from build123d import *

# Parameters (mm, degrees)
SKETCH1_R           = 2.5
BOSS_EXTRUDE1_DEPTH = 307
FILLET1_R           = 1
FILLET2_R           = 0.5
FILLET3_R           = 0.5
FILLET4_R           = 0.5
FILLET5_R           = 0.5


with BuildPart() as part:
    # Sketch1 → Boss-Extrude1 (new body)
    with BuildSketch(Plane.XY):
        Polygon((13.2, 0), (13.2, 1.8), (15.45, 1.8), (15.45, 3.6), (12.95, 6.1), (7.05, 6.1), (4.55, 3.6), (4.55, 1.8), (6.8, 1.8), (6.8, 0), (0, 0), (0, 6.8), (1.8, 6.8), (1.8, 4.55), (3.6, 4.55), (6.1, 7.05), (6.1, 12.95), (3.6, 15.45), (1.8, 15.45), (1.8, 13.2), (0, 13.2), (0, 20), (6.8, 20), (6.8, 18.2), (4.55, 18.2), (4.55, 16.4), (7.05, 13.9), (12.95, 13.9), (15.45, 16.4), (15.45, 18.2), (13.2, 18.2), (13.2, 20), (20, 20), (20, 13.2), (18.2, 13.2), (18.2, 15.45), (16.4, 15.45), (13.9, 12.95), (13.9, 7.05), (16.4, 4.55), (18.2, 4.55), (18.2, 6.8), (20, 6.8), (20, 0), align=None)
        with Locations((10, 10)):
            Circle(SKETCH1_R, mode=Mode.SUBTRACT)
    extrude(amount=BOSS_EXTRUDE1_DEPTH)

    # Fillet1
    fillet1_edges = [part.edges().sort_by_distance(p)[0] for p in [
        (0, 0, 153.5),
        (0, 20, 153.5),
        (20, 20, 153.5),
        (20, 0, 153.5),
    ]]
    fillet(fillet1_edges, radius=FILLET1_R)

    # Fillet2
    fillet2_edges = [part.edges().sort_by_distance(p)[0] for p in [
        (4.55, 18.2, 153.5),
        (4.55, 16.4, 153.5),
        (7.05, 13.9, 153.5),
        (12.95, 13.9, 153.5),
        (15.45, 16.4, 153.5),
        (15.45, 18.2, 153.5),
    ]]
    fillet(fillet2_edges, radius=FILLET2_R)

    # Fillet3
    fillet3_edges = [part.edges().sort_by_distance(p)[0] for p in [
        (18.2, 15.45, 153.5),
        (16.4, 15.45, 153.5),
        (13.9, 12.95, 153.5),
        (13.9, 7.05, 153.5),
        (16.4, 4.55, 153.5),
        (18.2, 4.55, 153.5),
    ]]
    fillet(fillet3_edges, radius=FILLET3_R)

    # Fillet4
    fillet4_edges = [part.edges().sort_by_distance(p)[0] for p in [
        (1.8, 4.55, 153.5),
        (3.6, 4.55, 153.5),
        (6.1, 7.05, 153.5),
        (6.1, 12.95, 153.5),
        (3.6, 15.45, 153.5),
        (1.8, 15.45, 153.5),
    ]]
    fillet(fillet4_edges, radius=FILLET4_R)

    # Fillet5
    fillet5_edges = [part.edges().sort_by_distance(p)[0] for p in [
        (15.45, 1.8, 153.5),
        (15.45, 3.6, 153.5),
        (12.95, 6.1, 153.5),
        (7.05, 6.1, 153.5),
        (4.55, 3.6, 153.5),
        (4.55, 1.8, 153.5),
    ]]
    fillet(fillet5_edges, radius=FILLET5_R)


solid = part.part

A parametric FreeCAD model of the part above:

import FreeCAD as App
import Part
import Sketcher
from FreeCAD import Vector


def edges_at(feature, points):
    """Names of the edges that pass closest to the given points."""
    edges = feature.Shape.Edges
    near = lambda p: min(range(len(edges)), key=lambda i: edges[i].distToShape(Part.Vertex(*p))[0])
    return sorted({f"Edge{near(p) + 1}" for p in points})

doc = App.newDocument("Part")
body = doc.addObject("PartDesign::Body", "Body")

sketch1 = body.newObject("Sketcher::SketchObject", "Sketch")
sketch1.AttachmentSupport = (doc.getObject("XY_Plane"), [""])
sketch1.MapMode = "FlatFace"
sketch1.addGeometry([
    Part.LineSegment(Vector(13.2, 1.8, 0), Vector(13.2, 0, 0)),
    Part.LineSegment(Vector(13.2, 0, 0), Vector(20, 0, 0)),
    Part.LineSegment(Vector(20, 0, 0), Vector(20, 6.8, 0)),
    Part.LineSegment(Vector(20, 6.8, 0), Vector(18.2, 6.8, 0)),
    Part.LineSegment(Vector(18.2, 6.8, 0), Vector(18.2, 4.5, 0)),
    Part.LineSegment(Vector(18.2, 4.5, 0), Vector(16.4, 4.5, 0)),
    Part.LineSegment(Vector(16.4, 4.5, 0), Vector(13.9, 7, 0)),
    Part.LineSegment(Vector(13.9, 7, 0), Vector(13.9, 12.9, 0)),
    Part.LineSegment(Vector(13.9, 12.9, 0), Vector(16.4, 15.4, 0)),
    Part.LineSegment(Vector(16.4, 15.4, 0), Vector(18.2, 15.4, 0)),
    Part.LineSegment(Vector(18.2, 15.4, 0), Vector(18.2, 13.2, 0)),
    Part.LineSegment(Vector(18.2, 13.2, 0), Vector(20, 13.2, 0)),
    Part.LineSegment(Vector(20, 13.2, 0), Vector(20, 20, 0)),
    Part.LineSegment(Vector(20, 20, 0), Vector(13.2, 20, 0)),
    Part.LineSegment(Vector(13.2, 20, 0), Vector(13.2, 18.2, 0)),
    Part.LineSegment(Vector(13.2, 18.2, 0), Vector(15.4, 18.2, 0)),
    Part.LineSegment(Vector(15.4, 18.2, 0), Vector(15.4, 16.4, 0)),
    Part.LineSegment(Vector(15.4, 16.4, 0), Vector(12.9, 13.9, 0)),
    Part.LineSegment(Vector(12.9, 13.9, 0), Vector(7, 13.9, 0)),
    Part.LineSegment(Vector(7, 13.9, 0), Vector(4.5, 16.4, 0)),
    Part.LineSegment(Vector(4.5, 16.4, 0), Vector(4.5, 18.2, 0)),
    Part.LineSegment(Vector(4.5, 18.2, 0), Vector(6.8, 18.2, 0)),
    Part.LineSegment(Vector(6.8, 18.2, 0), Vector(6.8, 20, 0)),
    Part.LineSegment(Vector(6.8, 20, 0), Vector(0, 20, 0)),
    Part.LineSegment(Vector(0, 20, 0), Vector(0, 13.2, 0)),
    Part.LineSegment(Vector(0, 13.2, 0), Vector(1.8, 13.2, 0)),
    Part.LineSegment(Vector(1.8, 13.2, 0), Vector(1.8, 15.4, 0)),
    Part.LineSegment(Vector(1.8, 15.4, 0), Vector(3.6, 15.4, 0)),
    Part.LineSegment(Vector(3.6, 15.4, 0), Vector(6.1, 12.9, 0)),
    Part.LineSegment(Vector(6.1, 12.9, 0), Vector(6.1, 7, 0)),
    Part.LineSegment(Vector(6.1, 7, 0), Vector(3.6, 4.5, 0)),
    Part.LineSegment(Vector(3.6, 4.5, 0), Vector(1.8, 4.5, 0)),
    Part.LineSegment(Vector(1.8, 4.5, 0), Vector(1.8, 6.8, 0)),
    Part.LineSegment(Vector(1.8, 6.8, 0), Vector(0, 6.8, 0)),
    Part.LineSegment(Vector(0, 6.8, 0), Vector(0, 0, 0)),
    Part.LineSegment(Vector(0, 0, 0), Vector(6.8, 0, 0)),
    Part.LineSegment(Vector(6.8, 0, 0), Vector(6.8, 1.8, 0)),
    Part.LineSegment(Vector(6.8, 1.8, 0), Vector(4.5, 1.8, 0)),
    Part.LineSegment(Vector(4.5, 1.8, 0), Vector(4.5, 3.6, 0)),
    Part.LineSegment(Vector(4.5, 3.6, 0), Vector(7, 6.1, 0)),
    Part.LineSegment(Vector(7, 6.1, 0), Vector(12.9, 6.1, 0)),
    Part.LineSegment(Vector(12.9, 6.1, 0), Vector(15.4, 3.6, 0)),
    Part.LineSegment(Vector(15.4, 3.6, 0), Vector(15.4, 1.8, 0)),
    Part.LineSegment(Vector(15.4, 1.8, 0), Vector(13.2, 1.8, 0)),
    Part.Circle(Vector(10, 10, 0), Vector(0, 0, 1), 2.5),
], False)
sketch1.addConstraint([
    Sketcher.Constraint("Coincident", 0, 2, 1, 1),
    Sketcher.Constraint("Coincident", 1, 2, 2, 1),
    Sketcher.Constraint("Coincident", 2, 2, 3, 1),
    Sketcher.Constraint("Coincident", 3, 2, 4, 1),
    Sketcher.Constraint("Coincident", 4, 2, 5, 1),
    Sketcher.Constraint("Coincident", 5, 2, 6, 1),
    Sketcher.Constraint("Coincident", 6, 2, 7, 1),
    Sketcher.Constraint("Coincident", 7, 2, 8, 1),
    Sketcher.Constraint("Coincident", 8, 2, 9, 1),
    Sketcher.Constraint("Coincident", 9, 2, 10, 1),
    Sketcher.Constraint("Coincident", 10, 2, 11, 1),
    Sketcher.Constraint("Coincident", 11, 2, 12, 1),
    Sketcher.Constraint("Coincident", 12, 2, 13, 1),
    Sketcher.Constraint("Coincident", 13, 2, 14, 1),
    Sketcher.Constraint("Coincident", 14, 2, 15, 1),
    Sketcher.Constraint("Coincident", 15, 2, 16, 1),
    Sketcher.Constraint("Coincident", 16, 2, 17, 1),
    Sketcher.Constraint("Coincident", 17, 2, 18, 1),
    Sketcher.Constraint("Coincident", 18, 2, 19, 1),
    Sketcher.Constraint("Coincident", 19, 2, 20, 1),
    Sketcher.Constraint("Coincident", 20, 2, 21, 1),
    Sketcher.Constraint("Coincident", 21, 2, 22, 1),
    Sketcher.Constraint("Coincident", 22, 2, 23, 1),
    Sketcher.Constraint("Coincident", 23, 2, 24, 1),
    Sketcher.Constraint("Coincident", 24, 2, 25, 1),
    Sketcher.Constraint("Coincident", 25, 2, 26, 1),
    Sketcher.Constraint("Coincident", 26, 2, 27, 1),
    Sketcher.Constraint("Coincident", 27, 2, 28, 1),
    Sketcher.Constraint("Coincident", 28, 2, 29, 1),
    Sketcher.Constraint("Coincident", 29, 2, 30, 1),
    Sketcher.Constraint("Coincident", 30, 2, 31, 1),
    Sketcher.Constraint("Coincident", 31, 2, 32, 1),
    Sketcher.Constraint("Coincident", 32, 2, 33, 1),
    Sketcher.Constraint("Coincident", 33, 2, 34, 1),
    Sketcher.Constraint("Coincident", 34, 2, 35, 1),
    Sketcher.Constraint("Coincident", 35, 2, 36, 1),
    Sketcher.Constraint("Coincident", 36, 2, 37, 1),
    Sketcher.Constraint("Coincident", 37, 2, 38, 1),
    Sketcher.Constraint("Coincident", 38, 2, 39, 1),
    Sketcher.Constraint("Coincident", 39, 2, 40, 1),
    Sketcher.Constraint("Coincident", 40, 2, 41, 1),
    Sketcher.Constraint("Coincident", 41, 2, 42, 1),
    Sketcher.Constraint("Coincident", 42, 2, 43, 1),
    Sketcher.Constraint("Coincident", 43, 2, 0, 1),
    Sketcher.Constraint("Vertical", 0),
    Sketcher.Constraint("Horizontal", 1),
    Sketcher.Constraint("Vertical", 2),
    Sketcher.Constraint("Horizontal", 3),
    Sketcher.Constraint("Vertical", 4),
    Sketcher.Constraint("Horizontal", 5),
    Sketcher.Constraint("Vertical", 7),
    Sketcher.Constraint("Horizontal", 9),
    Sketcher.Constraint("Vertical", 10),
    Sketcher.Constraint("Horizontal", 11),
    Sketcher.Constraint("Vertical", 12),
    Sketcher.Constraint("Horizontal", 13),
    Sketcher.Constraint("Vertical", 14),
    Sketcher.Constraint("Horizontal", 15),
    Sketcher.Constraint("Vertical", 16),
    Sketcher.Constraint("Horizontal", 18),
    Sketcher.Constraint("Vertical", 20),
    Sketcher.Constraint("Horizontal", 21),
    Sketcher.Constraint("Vertical", 22),
    Sketcher.Constraint("Horizontal", 23),
    Sketcher.Constraint("Vertical", 24),
    Sketcher.Constraint("Horizontal", 25),
    Sketcher.Constraint("Vertical", 26),
    Sketcher.Constraint("Horizontal", 27),
    Sketcher.Constraint("Vertical", 29),
    Sketcher.Constraint("Horizontal", 31),
    Sketcher.Constraint("Vertical", 32),
    Sketcher.Constraint("Horizontal", 33),
    Sketcher.Constraint("Vertical", 34),
    Sketcher.Constraint("Horizontal", 35),
    Sketcher.Constraint("Vertical", 36),
    Sketcher.Constraint("Horizontal", 37),
    Sketcher.Constraint("Vertical", 38),
    Sketcher.Constraint("Horizontal", 40),
    Sketcher.Constraint("Vertical", 42),
    Sketcher.Constraint("Horizontal", 43),
    Sketcher.Constraint("Coincident", 34, 2, -1, 1),
    Sketcher.Constraint("PointOnObject", 0, 2, -1),
    Sketcher.Constraint("PointOnObject", 23, 2, -2),
    Sketcher.Constraint("Perpendicular", 6, 8),
    Sketcher.Constraint("Parallel", 8, 17),
    Sketcher.Constraint("Perpendicular", 17, 19),
    Sketcher.Constraint("Parallel", 19, 28),
    Sketcher.Constraint("Perpendicular", 28, 30),
    Sketcher.Constraint("Parallel", 30, 39),
    Sketcher.Constraint("Perpendicular", 39, 41),
    Sketcher.Constraint("Horizontal", 16, 2, 19, 2),
    Sketcher.Constraint("Horizontal", 15, 2, 20, 2),
    Sketcher.Constraint("Horizontal", 13, 2, 22, 2),
    Sketcher.Constraint("Horizontal", 11, 2, 24, 2),
    Sketcher.Constraint("Horizontal", 9, 2, 26, 2),
    Sketcher.Constraint("Horizontal", 7, 2, 28, 2),
    Sketcher.Constraint("Horizontal", 6, 2, 29, 2),
    Sketcher.Constraint("Horizontal", 5, 2, 30, 2),
    Sketcher.Constraint("Horizontal", 3, 2, 32, 2),
    Sketcher.Constraint("Horizontal", 38, 2, 41, 2),
    Sketcher.Constraint("Horizontal", 37, 2, 42, 2),
    Sketcher.Constraint("Vertical", 5, 2, 8, 2),
    Sketcher.Constraint("Vertical", 4, 2, 9, 2),
    Sketcher.Constraint("Vertical", 2, 2, 11, 2),
    Sketcher.Constraint("Vertical", 0, 2, 13, 2),
    Sketcher.Constraint("Vertical", 27, 2, 30, 2),
    Sketcher.Constraint("Vertical", 26, 2, 31, 2),
    Sketcher.Constraint("Vertical", 22, 2, 35, 2),
    Sketcher.Constraint("Vertical", 20, 2, 37, 2),
    Sketcher.Constraint("Vertical", 18, 2, 39, 2),
    Sketcher.Constraint("Vertical", 17, 2, 40, 2),
    Sketcher.Constraint("Equal", 3, 5),
    Sketcher.Constraint("Equal", 15, 21),
    Sketcher.Constraint("Equal", 13, 23),
    Sketcher.Constraint("Equal", 11, 25),
    Sketcher.Constraint("Equal", 25, 27),
    Sketcher.Constraint("Equal", 33, 0),
    Sketcher.Constraint("Equal", 35, 2),
    Sketcher.Constraint("Equal", 43, 4),
    Sketcher.Constraint("Equal", 40, 7),
    Sketcher.Constraint("Equal", 4, 10),
    Sketcher.Constraint("Equal", 2, 12),
    Sketcher.Constraint("Equal", 0, 14),
    Sketcher.Constraint("Equal", 14, 16),
    Sketcher.Constraint("Equal", 36, 38),
    Sketcher.Constraint("Equal", 8, 17),
    Sketcher.Constraint("Diameter", 44, 5.0),
    Sketcher.Constraint("DistanceX", 1, 1, 1, 2, 6.8),
    Sketcher.Constraint("DistanceX", 3, 2, 3, 1, 1.8),
    Sketcher.Constraint("DistanceX", 18, 2, 18, 1, 5.9),
    Sketcher.Constraint("DistanceX", -1, 1, 44, 3, 10.0),
    Sketcher.Constraint("DistanceY", -1, 1, 44, 3, 10.0),
    Sketcher.Constraint("DistanceX", -1, 1, 1, 2, 20.0),
    Sketcher.Constraint("DistanceX", 15, 1, 15, 2, 2.25),
])
pad1 = body.newObject("PartDesign::Pad", "Pad")
pad1.Profile = sketch1
pad1.Length = 307
doc.recompute()

fillet = body.newObject("PartDesign::Fillet", "Fillet")
fillet.Base = (pad1, edges_at(pad1, [
    (0, 0, 153.5),
    (0, 20, 153.5),
    (20, 20, 153.5),
    (20, 0, 153.5),
]))
fillet.Radius = 1
doc.recompute()

fillet2 = body.newObject("PartDesign::Fillet", "Fillet001")
fillet2.Base = (fillet, edges_at(fillet, [
    (4.55, 18.2, 153.5),
    (4.55, 16.4, 153.5),
    (7.05, 13.9, 153.5),
    (12.95, 13.9, 153.5),
    (15.45, 16.4, 153.5),
    (15.45, 18.2, 153.5),
]))
fillet2.Radius = 0.5
doc.recompute()

fillet3 = body.newObject("PartDesign::Fillet", "Fillet002")
fillet3.Base = (fillet2, edges_at(fillet2, [
    (18.2, 15.45, 153.5),
    (16.4, 15.45, 153.5),
    (13.9, 12.95, 153.5),
    (13.9, 7.05, 153.5),
    (16.4, 4.55, 153.5),
    (18.2, 4.55, 153.5),
]))
fillet3.Radius = 0.5
doc.recompute()

fillet4 = body.newObject("PartDesign::Fillet", "Fillet003")
fillet4.Base = (fillet3, edges_at(fillet3, [
    (1.8, 4.55, 153.5),
    (3.6, 4.55, 153.5),
    (6.1, 7.05, 153.5),
    (6.1, 12.95, 153.5),
    (3.6, 15.45, 153.5),
    (1.8, 15.45, 153.5),
]))
fillet4.Radius = 0.5
doc.recompute()

fillet5 = body.newObject("PartDesign::Fillet", "Fillet004")
fillet5.Base = (fillet4, edges_at(fillet4, [
    (15.45, 1.8, 153.5),
    (15.45, 3.6, 153.5),
    (12.95, 6.1, 153.5),
    (7.05, 6.1, 153.5),
    (4.55, 3.6, 153.5),
    (4.55, 1.8, 153.5),
]))
fillet5.Radius = 0.5

doc.recompute()
